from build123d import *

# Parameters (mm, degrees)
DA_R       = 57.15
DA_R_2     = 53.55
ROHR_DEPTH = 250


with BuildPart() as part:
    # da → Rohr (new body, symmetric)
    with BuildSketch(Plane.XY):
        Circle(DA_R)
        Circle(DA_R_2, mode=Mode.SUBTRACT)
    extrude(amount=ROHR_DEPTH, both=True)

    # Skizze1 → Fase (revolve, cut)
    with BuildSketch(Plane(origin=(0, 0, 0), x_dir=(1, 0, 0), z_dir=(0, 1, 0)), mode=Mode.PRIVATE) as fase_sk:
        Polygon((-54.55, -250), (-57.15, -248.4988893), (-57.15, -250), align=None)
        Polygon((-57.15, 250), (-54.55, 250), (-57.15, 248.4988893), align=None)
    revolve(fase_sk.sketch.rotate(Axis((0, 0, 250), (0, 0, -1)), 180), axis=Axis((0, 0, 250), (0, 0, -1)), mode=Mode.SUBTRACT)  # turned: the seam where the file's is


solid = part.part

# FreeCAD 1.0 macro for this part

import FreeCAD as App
import Part
import Sketcher
from FreeCAD import Vector
Q = App.Units.Quantity


def add_polygon(sketch, points):
    """Adds a closed chain of lines whose ends are joined by coincident constraints."""
    first, n = sketch.GeometryCount, len(points)
    for a, b in zip(points, points[1:] + points[:1]):
        sketch.addGeometry(Part.LineSegment(App.Vector(*a, 0), App.Vector(*b, 0)), False)
    for i in range(n):
        sketch.addConstraint(Sketcher.Constraint("Coincident", first + i, 2, first + (i + 1) % n, 1))

doc = App.newDocument("Part")
body = doc.addObject("PartDesign::Body", "Body")

# Sketch on XY plane
sketch1 = doc.addObject("Sketcher::SketchObject", "Sketch")
body.addObject(sketch1)
sketch1.AttachmentSupport = (doc.XY_Plane, [""])
sketch1.MapMode = "FlatFace"
sketch1.addGeometry(Part.Circle(Vector(0, 0, 0), Vector(0, 0, 1), 57), False)
sketch1.addGeometry(Part.Circle(Vector(0, 0, 0), Vector(0, 0, 1), 54), False)
sketch1.addConstraint(Sketcher.Constraint("Coincident", 0, 3, -1, 1))
sketch1.addConstraint(Sketcher.Constraint("Coincident", 1, 3, -1, 1))
sketch1.addConstraint(Sketcher.Constraint("Diameter", 0, 114.3))
sketch1.addConstraint(Sketcher.Constraint("Diameter", 1, 107.1))
pad1 = doc.addObject("PartDesign::Pad", "Pad")
body.addObject(pad1)
pad1.Profile = sketch1
pad1.Length = 500
pad1.Midplane = True

# Sketch on XZ plane
sketch2 = doc.addObject("Sketcher::SketchObject", "Sketch001")
body.addObject(sketch2)
sketch2.AttachmentSupport = (doc.XZ_Plane, [""])
sketch2.MapMode = "FlatFace"
add_polygon(sketch2, [(-54.5, 250), (-57.1, 248.5), (-57.1, 250)])  # lines 0-2
add_polygon(sketch2, [(-54.5, -250), (-57.1, -250), (-57.1, -248.5)])  # lines 3-5
sketch2.addConstraint(Sketcher.Constraint("Vertical", 1))
sketch2.addConstraint(Sketcher.Constraint("Horizontal", 2))
sketch2.addConstraint(Sketcher.Constraint("Horizontal", 3))
sketch2.addConstraint(Sketcher.Constraint("Vertical", 4))
sketch2.addConstraint(Sketcher.Constraint("Symmetric", 1, 2, 3, 2, -1))
sketch2.addConstraint(Sketcher.Constraint("Vertical", 2, 2, 5, 2))
sketch2.addConstraint(Sketcher.Constraint("Equal", 1, 4))
sketch2.addConstraint(Sketcher.Constraint("Angle", 0, Q("-150 deg")))
sketch2.addConstraint(Sketcher.Constraint("DistanceX", 2, 1, 2, 2, 2.6))
sketch2.addConstraint(Sketcher.Constraint("DistanceY", -1, 1, 1, 2, 250.0))
sketch2.addConstraint(Sketcher.Constraint("DistanceX", 0, 2, -1, 1, 57.15))
groove = doc.addObject("PartDesign::Groove", "Groove")
body.addObject(groove)
groove.Profile = sketch2
groove.ReferenceAxis = (sketch2, ["V_Axis"])
groove.Angle = 360

doc.recompute()
